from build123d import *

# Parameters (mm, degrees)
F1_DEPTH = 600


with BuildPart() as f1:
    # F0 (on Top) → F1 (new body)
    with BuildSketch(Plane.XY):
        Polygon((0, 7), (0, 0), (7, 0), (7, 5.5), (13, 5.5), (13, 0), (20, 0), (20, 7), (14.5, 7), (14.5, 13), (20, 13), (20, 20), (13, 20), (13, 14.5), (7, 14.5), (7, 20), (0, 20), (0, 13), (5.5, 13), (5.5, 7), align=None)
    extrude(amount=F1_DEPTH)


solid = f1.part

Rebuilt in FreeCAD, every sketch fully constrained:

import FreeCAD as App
import Part
import Sketcher
from FreeCAD import Vector


def add_polygon(sketch, points):
    """Adds a closed chain of lines whose ends are joined by coincident constraints."""
    first, n = sketch.GeometryCount, len(points)
    for a, b in zip(points, points[1:] + points[:1]):
        sketch.addGeometry(Part.LineSegment(App.Vector(*a, 0), App.Vector(*b, 0)), False)
    for i in range(n):
        sketch.addConstraint(Sketcher.Constraint("Coincident", first + i, 2, first + (i + 1) % n, 1))

doc = App.newDocument("Part")
body = doc.addObject("PartDesign::Body", "Body")

sketch1 = body.newObject("Sketcher::SketchObject", "Sketch")
sketch1.AttachmentSupport = (doc.getObject("XY_Plane"), [""])
sketch1.MapMode = "FlatFace"
add_polygon(sketch1, [(0, 7), (0, 0), (7, 0), (7, 6), (13, 6), (13, 0), (20, 0), (20, 7), (14, 7), (14, 13), (20, 13), (20, 20), (13, 20), (13, 14), (7, 14), (7, 20), (0, 20), (0, 13), (6, 13), (6, 7)])
sketch1.addConstraint([
    Sketcher.Constraint("Vertical", 0),
    Sketcher.Constraint("Horizontal", 1),
    Sketcher.Constraint("Vertical", 2),
    Sketcher.Constraint("Horizontal", 3),
    Sketcher.Constraint("Vertical", 4),
    Sketcher.Constraint("Horizontal", 5),
    Sketcher.Constraint("Vertical", 6),
    Sketcher.Constraint("Horizontal", 7),
    Sketcher.Constraint("Vertical", 8),
    Sketcher.Constraint("Horizontal", 9),
    Sketcher.Constraint("Vertical", 10),
    Sketcher.Constraint("Horizontal", 11),
    Sketcher.Constraint("Vertical", 12),
    Sketcher.Constraint("Horizontal", 13),
    Sketcher.Constraint("Vertical", 14),
    Sketcher.Constraint("Horizontal", 15),
    Sketcher.Constraint("Vertical", 16),
    Sketcher.Constraint("Horizontal", 17),
    Sketcher.Constraint("Vertical", 18),
    Sketcher.Constraint("Horizontal", 19),
    Sketcher.Constraint("Coincident", 0, 2, -1, 1),
    Sketcher.Constraint("PointOnObject", 4, 2, -1),
    Sketcher.Constraint("PointOnObject", 15, 2, -2),
    Sketcher.Constraint("Horizontal", 11, 2, 14, 2),
    Sketcher.Constraint("Horizontal", 9, 2, 16, 2),
    Sketcher.Constraint("Horizontal", 7, 2, 18, 2),
    Sketcher.Constraint("Vertical", 6, 2, 9, 2),
    Sketcher.Constraint("Vertical", 4, 2, 11, 2),
    Sketcher.Constraint("Vertical", 2, 2, 13, 2),
    Sketcher.Constraint("Equal", 1, 5),
    Sketcher.Constraint("Equal", 9, 17),
    Sketcher.Constraint("Equal", 15, 0),
    Sketcher.Constraint("Equal", 19, 2),
    Sketcher.Constraint("Equal", 13, 8),
    Sketcher.Constraint("Equal", 6, 10),
    Sketcher.Constraint("Equal", 4, 12),
    Sketcher.Constraint("DistanceX", 1, 1, 1, 2, 7.0),
    Sketcher.Constraint("DistanceX", 3, 1, 3, 2, 6.0),
    Sketcher.Constraint("DistanceX", 7, 2, 7, 1, 5.5),
])
pad1 = body.newObject("PartDesign::Pad", "Pad")
pad1.Profile = sketch1
pad1.Length = 600

doc.recompute()
